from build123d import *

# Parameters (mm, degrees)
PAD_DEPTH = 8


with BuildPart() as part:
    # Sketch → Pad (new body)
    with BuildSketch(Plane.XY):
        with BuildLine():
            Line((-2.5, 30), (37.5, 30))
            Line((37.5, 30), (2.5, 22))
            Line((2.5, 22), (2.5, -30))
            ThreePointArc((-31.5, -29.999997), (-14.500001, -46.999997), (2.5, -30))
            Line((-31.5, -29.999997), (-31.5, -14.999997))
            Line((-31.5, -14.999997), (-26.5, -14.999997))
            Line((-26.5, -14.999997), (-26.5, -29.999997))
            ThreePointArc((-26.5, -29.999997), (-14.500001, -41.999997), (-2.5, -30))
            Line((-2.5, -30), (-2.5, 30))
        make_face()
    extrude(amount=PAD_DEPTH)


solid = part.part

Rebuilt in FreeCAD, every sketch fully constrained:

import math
import FreeCAD as App
import Part
import Sketcher
Q = App.Units.Quantity

doc = App.newDocument("Part")
body = doc.addObject("PartDesign::Body", "Body")

# Sketch on XY plane
sketch1 = body.newObject("Sketcher::SketchObject", "Sketch")
sketch1.AttachmentSupport = (doc.getObject("XY_Plane"), [""])
sketch1.MapMode = "FlatFace"
sketch1.addGeometry([
    Part.LineSegment(App.Vector(38, 30, 0), App.Vector(-2, 30, 0)),  # 0
    Part.LineSegment(App.Vector(-2, 30, 0), App.Vector(-2, -30, 0)),  # 1
    Part.ArcOfCircle(Part.Circle(App.Vector(-14, -30, 0), App.Vector(0, 0, 1), 12), math.radians(180), math.radians(360)),  # 2
    Part.LineSegment(App.Vector(-26, -30, 0), App.Vector(-26, -15, 0)),  # 3
    Part.LineSegment(App.Vector(-26, -15, 0), App.Vector(-32, -15, 0)),  # 4
    Part.LineSegment(App.Vector(-32, -15, 0), App.Vector(-32, -30, 0)),  # 5
    Part.ArcOfCircle(Part.Circle(App.Vector(-14, -30, 0), App.Vector(0, 0, 1), 17), math.radians(180), math.radians(360)),  # 6
    Part.LineSegment(App.Vector(2, -30, 0), App.Vector(2, 22, 0)),  # 7
    Part.LineSegment(App.Vector(2, 22, 0), App.Vector(38, 30, 0)),  # 8
], False)
sketch1.addConstraint([
    Sketcher.Constraint("Coincident", 0, 2, 1, 1),
    Sketcher.Constraint("Tangent", 1, 2, 2, 2),
    Sketcher.Constraint("Tangent", 2, 1, 3, 1),
    Sketcher.Constraint("Coincident", 3, 2, 4, 1),
    Sketcher.Constraint("Coincident", 4, 2, 5, 1),
    Sketcher.Constraint("Tangent", 5, 2, 6, 1),
    Sketcher.Constraint("Tangent", 6, 2, 7, 1),
    Sketcher.Constraint("Coincident", 7, 2, 8, 1),
    Sketcher.Constraint("Coincident", 8, 2, 0, 1),
    Sketcher.Constraint("Horizontal", 0),
    Sketcher.Constraint("Vertical", 1),
    Sketcher.Constraint("Vertical", 3),
    Sketcher.Constraint("Horizontal", 4),
    Sketcher.Constraint("Vertical", 5),
    Sketcher.Constraint("Vertical", 7),
    Sketcher.Constraint("Coincident", 6, 3, 2, 3),
    Sketcher.Constraint("Symmetric", 0, 2, 6, 2, -1, 1),
    Sketcher.Constraint("Radius", 2, Q("12 mm")),
    Sketcher.Constraint("Radius", 6, Q("17 mm")),
    Sketcher.Constraint("DistanceX", 0, 2, 0, 1, Q("40 mm")),
    Sketcher.Constraint("DistanceY", 1, 2, 1, 1, Q("60 mm")),
    Sketcher.Constraint("DistanceY", 3, 1, 3, 2, Q("15 mm")),
    Sketcher.Constraint("DistanceY", 7, 1, 7, 2, Q("52 mm")),
])
pad1 = body.newObject("PartDesign::Pad", "Pad")
pad1.Profile = sketch1
pad1.Length = 8

doc.recompute()
